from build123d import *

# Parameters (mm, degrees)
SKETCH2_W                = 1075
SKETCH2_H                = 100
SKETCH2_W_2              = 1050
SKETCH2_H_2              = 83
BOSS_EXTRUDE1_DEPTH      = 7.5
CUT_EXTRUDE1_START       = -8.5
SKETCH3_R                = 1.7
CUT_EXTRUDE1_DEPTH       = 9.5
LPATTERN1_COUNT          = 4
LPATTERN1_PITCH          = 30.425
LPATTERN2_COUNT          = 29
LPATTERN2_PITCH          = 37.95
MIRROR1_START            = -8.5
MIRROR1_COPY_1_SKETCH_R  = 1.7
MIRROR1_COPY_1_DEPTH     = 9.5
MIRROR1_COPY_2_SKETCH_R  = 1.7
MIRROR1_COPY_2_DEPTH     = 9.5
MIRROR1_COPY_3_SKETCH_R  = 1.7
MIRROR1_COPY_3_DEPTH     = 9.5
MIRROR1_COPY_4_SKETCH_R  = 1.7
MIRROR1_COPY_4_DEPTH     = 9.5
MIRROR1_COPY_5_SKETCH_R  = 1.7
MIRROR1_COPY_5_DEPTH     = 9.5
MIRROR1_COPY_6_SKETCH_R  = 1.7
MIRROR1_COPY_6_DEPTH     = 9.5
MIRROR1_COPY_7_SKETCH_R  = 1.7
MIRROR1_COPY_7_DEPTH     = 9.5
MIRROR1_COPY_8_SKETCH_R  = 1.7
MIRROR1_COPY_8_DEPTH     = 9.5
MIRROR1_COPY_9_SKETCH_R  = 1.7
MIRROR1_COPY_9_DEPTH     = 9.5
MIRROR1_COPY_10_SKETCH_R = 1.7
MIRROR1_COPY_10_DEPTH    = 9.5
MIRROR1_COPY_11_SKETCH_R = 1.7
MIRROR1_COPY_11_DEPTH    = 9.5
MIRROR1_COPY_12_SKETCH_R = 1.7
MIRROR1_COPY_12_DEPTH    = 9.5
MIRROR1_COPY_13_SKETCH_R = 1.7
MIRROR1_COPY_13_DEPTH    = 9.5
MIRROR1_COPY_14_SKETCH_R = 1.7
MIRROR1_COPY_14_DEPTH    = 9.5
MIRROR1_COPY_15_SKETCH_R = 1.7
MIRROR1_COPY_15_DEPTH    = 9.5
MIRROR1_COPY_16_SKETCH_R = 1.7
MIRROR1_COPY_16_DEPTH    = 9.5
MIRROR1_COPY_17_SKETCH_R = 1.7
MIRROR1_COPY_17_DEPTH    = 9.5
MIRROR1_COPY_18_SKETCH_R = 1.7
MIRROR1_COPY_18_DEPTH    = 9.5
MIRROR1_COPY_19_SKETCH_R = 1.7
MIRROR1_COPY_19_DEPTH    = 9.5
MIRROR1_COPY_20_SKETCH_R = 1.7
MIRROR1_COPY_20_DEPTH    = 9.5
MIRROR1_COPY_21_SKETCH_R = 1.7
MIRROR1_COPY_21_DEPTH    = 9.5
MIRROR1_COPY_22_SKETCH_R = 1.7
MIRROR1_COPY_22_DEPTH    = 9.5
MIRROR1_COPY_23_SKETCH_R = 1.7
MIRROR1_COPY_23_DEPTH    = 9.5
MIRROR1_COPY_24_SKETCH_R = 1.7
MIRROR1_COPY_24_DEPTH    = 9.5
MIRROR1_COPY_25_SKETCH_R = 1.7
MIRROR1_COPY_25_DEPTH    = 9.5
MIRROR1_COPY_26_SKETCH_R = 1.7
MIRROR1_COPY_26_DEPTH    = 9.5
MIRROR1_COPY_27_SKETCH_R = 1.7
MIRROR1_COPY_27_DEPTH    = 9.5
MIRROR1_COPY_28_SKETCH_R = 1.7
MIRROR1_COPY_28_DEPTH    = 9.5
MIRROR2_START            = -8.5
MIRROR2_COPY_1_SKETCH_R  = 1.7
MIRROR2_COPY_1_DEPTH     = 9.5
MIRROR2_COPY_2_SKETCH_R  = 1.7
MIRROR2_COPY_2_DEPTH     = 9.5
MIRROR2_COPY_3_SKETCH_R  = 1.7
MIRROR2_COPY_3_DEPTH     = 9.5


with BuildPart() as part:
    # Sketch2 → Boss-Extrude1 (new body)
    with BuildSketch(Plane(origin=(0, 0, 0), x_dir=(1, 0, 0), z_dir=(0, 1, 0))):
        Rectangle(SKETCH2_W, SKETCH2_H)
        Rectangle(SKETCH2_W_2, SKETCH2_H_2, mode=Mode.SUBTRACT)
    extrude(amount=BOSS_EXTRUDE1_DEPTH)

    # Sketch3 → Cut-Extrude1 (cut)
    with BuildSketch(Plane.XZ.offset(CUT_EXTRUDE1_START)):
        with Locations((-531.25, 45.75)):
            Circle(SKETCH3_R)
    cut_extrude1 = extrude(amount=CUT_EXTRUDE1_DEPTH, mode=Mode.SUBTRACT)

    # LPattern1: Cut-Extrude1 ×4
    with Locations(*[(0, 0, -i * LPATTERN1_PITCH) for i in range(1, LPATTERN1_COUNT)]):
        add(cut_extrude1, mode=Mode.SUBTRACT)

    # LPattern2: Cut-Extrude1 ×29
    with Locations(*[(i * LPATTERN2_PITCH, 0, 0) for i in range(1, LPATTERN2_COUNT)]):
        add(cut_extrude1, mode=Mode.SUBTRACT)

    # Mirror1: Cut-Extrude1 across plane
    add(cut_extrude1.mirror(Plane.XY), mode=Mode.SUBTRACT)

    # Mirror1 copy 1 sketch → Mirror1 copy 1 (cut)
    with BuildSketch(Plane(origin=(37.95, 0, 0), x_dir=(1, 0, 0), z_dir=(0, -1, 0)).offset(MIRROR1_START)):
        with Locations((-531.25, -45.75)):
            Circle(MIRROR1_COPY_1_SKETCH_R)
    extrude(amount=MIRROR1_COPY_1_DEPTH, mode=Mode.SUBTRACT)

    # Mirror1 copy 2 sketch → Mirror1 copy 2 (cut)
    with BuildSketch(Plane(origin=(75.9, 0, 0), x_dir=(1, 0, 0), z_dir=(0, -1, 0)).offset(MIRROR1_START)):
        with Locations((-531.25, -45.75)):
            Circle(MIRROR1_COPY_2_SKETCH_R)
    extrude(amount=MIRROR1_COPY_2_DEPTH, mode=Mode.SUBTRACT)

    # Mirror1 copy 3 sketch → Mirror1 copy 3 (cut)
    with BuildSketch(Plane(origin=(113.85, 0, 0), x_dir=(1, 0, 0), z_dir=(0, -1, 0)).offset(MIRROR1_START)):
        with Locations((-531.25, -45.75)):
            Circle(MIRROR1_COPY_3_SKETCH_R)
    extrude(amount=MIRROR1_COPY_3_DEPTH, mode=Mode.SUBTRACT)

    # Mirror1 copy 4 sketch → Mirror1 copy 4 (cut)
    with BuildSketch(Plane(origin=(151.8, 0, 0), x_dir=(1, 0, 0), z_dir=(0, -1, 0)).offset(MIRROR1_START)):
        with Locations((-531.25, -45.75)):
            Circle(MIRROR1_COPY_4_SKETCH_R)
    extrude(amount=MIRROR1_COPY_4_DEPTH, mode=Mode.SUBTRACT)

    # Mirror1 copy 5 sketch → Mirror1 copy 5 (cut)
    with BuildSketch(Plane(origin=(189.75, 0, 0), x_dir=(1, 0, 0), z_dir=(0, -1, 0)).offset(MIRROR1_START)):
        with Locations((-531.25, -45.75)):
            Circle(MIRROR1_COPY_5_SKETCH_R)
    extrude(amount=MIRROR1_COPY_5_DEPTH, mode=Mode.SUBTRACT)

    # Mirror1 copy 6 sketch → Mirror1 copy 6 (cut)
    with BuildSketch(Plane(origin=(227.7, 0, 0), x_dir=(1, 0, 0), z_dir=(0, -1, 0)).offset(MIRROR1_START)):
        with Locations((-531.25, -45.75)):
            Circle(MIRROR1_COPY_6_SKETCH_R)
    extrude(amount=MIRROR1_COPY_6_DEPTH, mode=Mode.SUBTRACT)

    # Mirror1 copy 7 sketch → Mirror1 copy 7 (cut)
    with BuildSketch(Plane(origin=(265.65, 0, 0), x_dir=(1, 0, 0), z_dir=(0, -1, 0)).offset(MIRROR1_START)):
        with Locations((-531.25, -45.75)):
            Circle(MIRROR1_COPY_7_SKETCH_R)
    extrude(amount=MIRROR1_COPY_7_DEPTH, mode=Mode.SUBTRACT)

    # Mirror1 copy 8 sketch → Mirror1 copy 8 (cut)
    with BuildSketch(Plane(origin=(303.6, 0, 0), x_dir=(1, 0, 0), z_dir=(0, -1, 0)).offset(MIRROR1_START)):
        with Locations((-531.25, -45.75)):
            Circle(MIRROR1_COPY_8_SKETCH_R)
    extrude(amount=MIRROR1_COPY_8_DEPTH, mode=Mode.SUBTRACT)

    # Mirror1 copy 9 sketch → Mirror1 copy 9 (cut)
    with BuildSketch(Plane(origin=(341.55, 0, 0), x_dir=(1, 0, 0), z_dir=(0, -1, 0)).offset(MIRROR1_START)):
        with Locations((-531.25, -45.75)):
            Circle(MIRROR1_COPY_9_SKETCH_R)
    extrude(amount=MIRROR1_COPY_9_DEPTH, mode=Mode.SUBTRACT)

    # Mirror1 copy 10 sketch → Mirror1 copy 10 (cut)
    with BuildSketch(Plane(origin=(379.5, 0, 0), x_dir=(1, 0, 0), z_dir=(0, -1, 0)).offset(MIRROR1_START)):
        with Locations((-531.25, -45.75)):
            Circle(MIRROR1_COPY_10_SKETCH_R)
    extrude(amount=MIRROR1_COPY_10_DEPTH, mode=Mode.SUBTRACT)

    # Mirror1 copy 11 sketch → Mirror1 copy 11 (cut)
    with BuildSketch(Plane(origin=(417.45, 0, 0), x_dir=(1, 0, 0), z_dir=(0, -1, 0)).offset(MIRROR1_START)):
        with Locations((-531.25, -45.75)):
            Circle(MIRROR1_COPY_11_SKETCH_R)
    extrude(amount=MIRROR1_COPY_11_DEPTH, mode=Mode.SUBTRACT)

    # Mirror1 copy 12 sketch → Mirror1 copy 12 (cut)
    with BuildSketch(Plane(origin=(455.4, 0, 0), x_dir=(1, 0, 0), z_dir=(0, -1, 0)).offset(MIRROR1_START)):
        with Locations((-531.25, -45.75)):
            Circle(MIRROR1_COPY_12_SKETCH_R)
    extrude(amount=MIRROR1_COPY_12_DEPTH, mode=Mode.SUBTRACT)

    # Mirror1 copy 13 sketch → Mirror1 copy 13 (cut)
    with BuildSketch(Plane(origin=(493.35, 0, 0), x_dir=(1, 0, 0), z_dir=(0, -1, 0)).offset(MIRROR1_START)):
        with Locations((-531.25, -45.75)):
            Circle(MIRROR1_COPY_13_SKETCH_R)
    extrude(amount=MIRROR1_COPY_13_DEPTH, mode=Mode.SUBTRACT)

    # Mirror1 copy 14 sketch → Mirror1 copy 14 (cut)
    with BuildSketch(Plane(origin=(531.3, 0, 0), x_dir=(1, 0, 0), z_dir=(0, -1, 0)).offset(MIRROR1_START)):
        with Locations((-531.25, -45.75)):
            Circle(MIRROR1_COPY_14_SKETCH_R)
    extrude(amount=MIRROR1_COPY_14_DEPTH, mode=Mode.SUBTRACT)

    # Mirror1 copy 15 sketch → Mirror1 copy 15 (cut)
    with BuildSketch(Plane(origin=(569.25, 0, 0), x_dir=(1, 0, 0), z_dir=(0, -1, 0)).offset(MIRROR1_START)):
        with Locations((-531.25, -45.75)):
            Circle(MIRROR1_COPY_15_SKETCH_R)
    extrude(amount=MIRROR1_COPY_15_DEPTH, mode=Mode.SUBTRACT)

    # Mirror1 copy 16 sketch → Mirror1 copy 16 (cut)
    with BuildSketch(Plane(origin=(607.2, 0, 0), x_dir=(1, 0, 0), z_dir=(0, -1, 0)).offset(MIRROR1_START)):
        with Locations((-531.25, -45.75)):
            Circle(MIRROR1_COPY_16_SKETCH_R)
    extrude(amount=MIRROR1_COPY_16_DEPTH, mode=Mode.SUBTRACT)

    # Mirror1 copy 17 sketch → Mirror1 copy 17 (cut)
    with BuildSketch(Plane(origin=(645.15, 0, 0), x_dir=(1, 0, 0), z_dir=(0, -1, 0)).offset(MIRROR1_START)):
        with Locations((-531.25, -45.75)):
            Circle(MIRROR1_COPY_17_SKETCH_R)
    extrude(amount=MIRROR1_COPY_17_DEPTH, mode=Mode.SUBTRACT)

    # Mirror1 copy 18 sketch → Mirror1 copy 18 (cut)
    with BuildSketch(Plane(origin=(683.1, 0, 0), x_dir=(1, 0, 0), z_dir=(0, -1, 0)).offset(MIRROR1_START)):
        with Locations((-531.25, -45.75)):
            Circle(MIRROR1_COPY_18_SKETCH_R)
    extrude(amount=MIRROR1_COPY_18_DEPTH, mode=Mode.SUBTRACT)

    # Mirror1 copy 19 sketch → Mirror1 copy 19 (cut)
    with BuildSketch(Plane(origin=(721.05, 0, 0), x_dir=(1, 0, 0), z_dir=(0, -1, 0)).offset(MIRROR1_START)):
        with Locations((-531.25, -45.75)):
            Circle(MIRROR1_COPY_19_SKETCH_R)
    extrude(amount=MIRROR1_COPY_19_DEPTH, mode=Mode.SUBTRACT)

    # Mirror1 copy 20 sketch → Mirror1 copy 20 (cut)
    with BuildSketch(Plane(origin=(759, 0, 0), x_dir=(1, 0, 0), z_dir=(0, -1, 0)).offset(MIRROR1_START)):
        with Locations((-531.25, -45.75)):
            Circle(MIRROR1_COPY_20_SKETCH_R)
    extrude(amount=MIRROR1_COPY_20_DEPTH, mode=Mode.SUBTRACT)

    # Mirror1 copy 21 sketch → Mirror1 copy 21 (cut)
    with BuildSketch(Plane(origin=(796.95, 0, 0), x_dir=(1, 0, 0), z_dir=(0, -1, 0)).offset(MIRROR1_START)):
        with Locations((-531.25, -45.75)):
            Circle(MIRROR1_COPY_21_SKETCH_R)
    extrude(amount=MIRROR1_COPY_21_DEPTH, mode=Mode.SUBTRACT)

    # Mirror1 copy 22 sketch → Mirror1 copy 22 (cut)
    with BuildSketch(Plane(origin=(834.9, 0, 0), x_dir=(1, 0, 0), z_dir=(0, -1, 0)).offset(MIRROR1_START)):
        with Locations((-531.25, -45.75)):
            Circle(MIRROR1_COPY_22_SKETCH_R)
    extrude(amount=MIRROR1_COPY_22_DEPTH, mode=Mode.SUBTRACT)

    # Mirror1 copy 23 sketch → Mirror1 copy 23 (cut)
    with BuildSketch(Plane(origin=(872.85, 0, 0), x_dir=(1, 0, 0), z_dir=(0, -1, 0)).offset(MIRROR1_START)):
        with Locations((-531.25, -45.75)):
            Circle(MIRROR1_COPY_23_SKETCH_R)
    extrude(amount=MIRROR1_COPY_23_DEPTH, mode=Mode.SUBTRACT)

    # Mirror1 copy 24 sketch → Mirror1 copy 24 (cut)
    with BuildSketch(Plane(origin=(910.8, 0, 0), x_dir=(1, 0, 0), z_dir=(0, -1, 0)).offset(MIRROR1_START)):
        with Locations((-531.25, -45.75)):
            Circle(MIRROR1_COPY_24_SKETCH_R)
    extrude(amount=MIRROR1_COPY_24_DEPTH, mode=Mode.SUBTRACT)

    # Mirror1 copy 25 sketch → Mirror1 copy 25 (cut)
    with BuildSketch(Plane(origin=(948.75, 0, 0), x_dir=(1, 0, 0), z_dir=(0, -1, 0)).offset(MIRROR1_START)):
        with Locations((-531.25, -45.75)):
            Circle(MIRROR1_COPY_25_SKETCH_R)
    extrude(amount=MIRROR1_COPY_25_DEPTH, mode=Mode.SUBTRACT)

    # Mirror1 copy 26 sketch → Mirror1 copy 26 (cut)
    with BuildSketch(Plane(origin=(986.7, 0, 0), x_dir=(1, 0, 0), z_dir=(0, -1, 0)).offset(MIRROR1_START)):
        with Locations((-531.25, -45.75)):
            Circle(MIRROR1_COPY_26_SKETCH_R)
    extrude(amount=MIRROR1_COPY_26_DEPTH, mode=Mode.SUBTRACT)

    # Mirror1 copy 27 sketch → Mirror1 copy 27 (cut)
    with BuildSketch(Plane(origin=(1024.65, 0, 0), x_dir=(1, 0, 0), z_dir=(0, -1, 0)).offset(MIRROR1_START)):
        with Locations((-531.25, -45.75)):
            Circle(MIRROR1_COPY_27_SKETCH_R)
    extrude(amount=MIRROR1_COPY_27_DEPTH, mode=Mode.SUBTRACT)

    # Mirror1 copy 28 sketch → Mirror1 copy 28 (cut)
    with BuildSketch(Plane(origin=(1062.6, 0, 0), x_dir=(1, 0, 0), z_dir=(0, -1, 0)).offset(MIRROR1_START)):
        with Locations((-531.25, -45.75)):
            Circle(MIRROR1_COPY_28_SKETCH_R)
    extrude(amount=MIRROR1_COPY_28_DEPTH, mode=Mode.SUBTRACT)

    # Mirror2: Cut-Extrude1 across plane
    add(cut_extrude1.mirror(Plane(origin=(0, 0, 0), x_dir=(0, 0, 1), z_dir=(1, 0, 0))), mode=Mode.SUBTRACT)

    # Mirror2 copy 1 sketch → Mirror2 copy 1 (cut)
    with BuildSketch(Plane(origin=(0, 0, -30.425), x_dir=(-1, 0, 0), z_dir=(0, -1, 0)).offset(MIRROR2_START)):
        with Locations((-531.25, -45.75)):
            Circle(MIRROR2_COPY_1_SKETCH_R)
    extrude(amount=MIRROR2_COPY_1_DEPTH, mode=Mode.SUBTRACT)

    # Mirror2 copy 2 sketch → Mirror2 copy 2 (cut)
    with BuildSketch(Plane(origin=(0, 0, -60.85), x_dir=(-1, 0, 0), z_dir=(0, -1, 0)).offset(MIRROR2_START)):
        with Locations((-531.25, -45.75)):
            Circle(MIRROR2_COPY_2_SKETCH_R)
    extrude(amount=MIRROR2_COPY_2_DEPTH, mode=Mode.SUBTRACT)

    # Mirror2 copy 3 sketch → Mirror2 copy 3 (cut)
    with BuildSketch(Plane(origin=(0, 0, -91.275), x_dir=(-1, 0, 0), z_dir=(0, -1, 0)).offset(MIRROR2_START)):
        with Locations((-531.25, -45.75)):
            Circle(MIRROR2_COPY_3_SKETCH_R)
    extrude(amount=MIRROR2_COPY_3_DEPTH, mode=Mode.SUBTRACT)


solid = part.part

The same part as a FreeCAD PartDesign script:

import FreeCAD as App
import Part
import Sketcher

V = App.Vector
Q = App.Units.Quantity


def add_polygon(sketch, points):
    """Adds a closed chain of lines whose ends are joined by coincident constraints."""
    first, n = sketch.GeometryCount, len(points)
    for a, b in zip(points, points[1:] + points[:1]):
        sketch.addGeometry(Part.LineSegment(App.Vector(*a, 0), App.Vector(*b, 0)), False)
    for i in range(n):
        sketch.addConstraint(Sketcher.Constraint("Coincident", first + i, 2, first + (i + 1) % n, 1))

doc = App.newDocument("Part")
body = doc.addObject("PartDesign::Body", "Body")

# Sketch on XZ plane
sketch1 = doc.addObject("Sketcher::SketchObject", "Sketch")
body.addObject(sketch1)
sketch1.AttachmentSupport = (doc.XZ_Plane, [""])
sketch1.MapMode = "FlatFace"
add_polygon(sketch1, [(-538, -50), (-538, 50), (538, 50), (538, -50)])  # lines 0-3
add_polygon(sketch1, [(525, 42), (-525, 42), (-525, -42), (525, -42)])  # lines 4-7
sketch1.addConstraint(Sketcher.Constraint("Vertical", 0))
sketch1.addConstraint(Sketcher.Constraint("Horizontal", 1))
sketch1.addConstraint(Sketcher.Constraint("Vertical", 2))
sketch1.addConstraint(Sketcher.Constraint("Horizontal", 3))
sketch1.addConstraint(Sketcher.Constraint("Horizontal", 4))
sketch1.addConstraint(Sketcher.Constraint("Vertical", 5))
sketch1.addConstraint(Sketcher.Constraint("Horizontal", 6))
sketch1.addConstraint(Sketcher.Constraint("Vertical", 7))
sketch1.addConstraint(Sketcher.Constraint("Symmetric", 0, 2, 2, 2, -1, 1))
sketch1.addConstraint(Sketcher.Constraint("Symmetric", 4, 2, 6, 2, -1, 1))
sketch1.addConstraint(Sketcher.Constraint("DistanceX", 1, 1, 1, 2, Q("1075 mm")))
sketch1.addConstraint(Sketcher.Constraint("DistanceX", 4, 2, 4, 1, Q("1050 mm")))
sketch1.addConstraint(Sketcher.Constraint("DistanceY", 0, 1, 0, 2, Q("100 mm")))
sketch1.addConstraint(Sketcher.Constraint("DistanceY", 5, 2, 5, 1, Q("83 mm")))
pad1 = doc.addObject("PartDesign::Pad", "Pad")
body.addObject(pad1)
pad1.Profile = sketch1
pad1.Length = 7.5
pad1.Reversed = True

# Sketch on XZ plane
sketch2 = doc.addObject("Sketcher::SketchObject", "Sketch001")
body.addObject(sketch2)
sketch2.AttachmentSupport = (doc.XZ_Plane, [""])
sketch2.MapMode = "FlatFace"
sketch2.AttachmentOffset = App.Placement(V(0, 0, -8.5), App.Rotation())
sketch2.addGeometry(Part.Circle(V(-531.2, 45.8, 0), V(0, 0, 1), 1.7), False)
sketch2.addConstraint(Sketcher.Constraint("Diameter", 0, Q("3.4 mm")))
sketch2.addConstraint(Sketcher.Constraint("DistanceX", 0, 3, -1, 1, Q("531.25 mm")))
sketch2.addConstraint(Sketcher.Constraint("DistanceY", -1, 1, 0, 3, Q("45.75 mm")))
pocket1 = doc.addObject("PartDesign::Pocket", "Pocket")
body.addObject(pocket1)
pocket1.Profile = sketch2
pocket1.Length = 9.5
pocket1.Reversed = True
doc.recompute()

linearpattern = doc.addObject("PartDesign::LinearPattern", "LinearPattern")
body.addObject(linearpattern)
linearpattern.Originals = [pocket1]
linearpattern.Direction = (doc.Z_Axis, [""])
linearpattern.Mode = "offset"
linearpattern.Offset = 30.425
linearpattern.Occurrences = 4
linearpattern.Reversed = True
body.Tip = linearpattern
doc.recompute()

linearpattern2 = doc.addObject("PartDesign::LinearPattern", "LinearPattern001")
body.addObject(linearpattern2)
linearpattern2.Originals = [pocket1]
linearpattern2.Direction = (doc.X_Axis, [""])
linearpattern2.Mode = "offset"
linearpattern2.Offset = 37.95
linearpattern2.Occurrences = 29
body.Tip = linearpattern2
doc.recompute()

mirrored = doc.addObject("PartDesign::Mirrored", "Mirrored")
body.addObject(mirrored)
mirrored.Originals = [pocket1]
mirrored.MirrorPlane = (doc.XY_Plane, [""])
body.Tip = mirrored

# Sketch on XZ plane
sketch3 = doc.addObject("Sketcher::SketchObject", "Sketch002")
body.addObject(sketch3)
sketch3.AttachmentSupport = (doc.XZ_Plane, [""])
sketch3.MapMode = "FlatFace"
sketch3.AttachmentOffset = App.Placement(V(0, 0, -8.5), App.Rotation())
sketch3.addGeometry(Part.Circle(V(-493.3, -45.8, 0), V(0, 0, 1), 1.7), False)
sketch3.addConstraint(Sketcher.Constraint("Diameter", 0, Q("3.4 mm")))
sketch3.addConstraint(Sketcher.Constraint("DistanceX", 0, 3, -1, 1, Q("493.3 mm")))
sketch3.addConstraint(Sketcher.Constraint("DistanceY", 0, 3, -1, 1, Q("45.75 mm")))
pocket2 = doc.addObject("PartDesign::Pocket", "Pocket001")
body.addObject(pocket2)
pocket2.Profile = sketch3
pocket2.Length = 9.5
pocket2.Reversed = True

# Sketch on XZ plane
sketch4 = doc.addObject("Sketcher::SketchObject", "Sketch003")
body.addObject(sketch4)
sketch4.AttachmentSupport = (doc.XZ_Plane, [""])
sketch4.MapMode = "FlatFace"
sketch4.AttachmentOffset = App.Placement(V(0, 0, -8.5), App.Rotation())
sketch4.addGeometry(Part.Circle(V(-455.4, -45.8, 0), V(0, 0, 1), 1.7), False)
sketch4.addConstraint(Sketcher.Constraint("Diameter", 0, Q("3.4 mm")))
sketch4.addConstraint(Sketcher.Constraint("DistanceX", 0, 3, -1, 1, Q("455.35 mm")))
sketch4.addConstraint(Sketcher.Constraint("DistanceY", 0, 3, -1, 1, Q("45.75 mm")))
pocket3 = doc.addObject("PartDesign::Pocket", "Pocket002")
body.addObject(pocket3)
pocket3.Profile = sketch4
pocket3.Length = 9.5
pocket3.Reversed = True

# Sketch on XZ plane
sketch5 = doc.addObject("Sketcher::SketchObject", "Sketch004")
body.addObject(sketch5)
sketch5.AttachmentSupport = (doc.XZ_Plane, [""])
sketch5.MapMode = "FlatFace"
sketch5.AttachmentOffset = App.Placement(V(0, 0, -8.5), App.Rotation())
sketch5.addGeometry(Part.Circle(V(-417.4, -45.8, 0), V(0, 0, 1), 1.7), False)
sketch5.addConstraint(Sketcher.Constraint("Diameter", 0, Q("3.4 mm")))
sketch5.addConstraint(Sketcher.Constraint("DistanceX", 0, 3, -1, 1, Q("417.4 mm")))
sketch5.addConstraint(Sketcher.Constraint("DistanceY", 0, 3, -1, 1, Q("45.75 mm")))
pocket4 = doc.addObject("PartDesign::Pocket", "Pocket003")
body.addObject(pocket4)
pocket4.Profile = sketch5
pocket4.Length = 9.5
pocket4.Reversed = True

# Sketch on XZ plane
sketch6 = doc.addObject("Sketcher::SketchObject", "Sketch005")
body.addObject(sketch6)
sketch6.AttachmentSupport = (doc.XZ_Plane, [""])
sketch6.MapMode = "FlatFace"
sketch6.AttachmentOffset = App.Placement(V(0, 0, -8.5), App.Rotation())
sketch6.addGeometry(Part.Circle(V(-379.4, -45.8, 0), V(0, 0, 1), 1.7), False)
sketch6.addConstraint(Sketcher.Constraint("Diameter", 0, Q("3.4 mm")))
sketch6.addConstraint(Sketcher.Constraint("DistanceX", 0, 3, -1, 1, Q("379.45 mm")))
sketch6.addConstraint(Sketcher.Constraint("DistanceY", 0, 3, -1, 1, Q("45.75 mm")))
pocket5 = doc.addObject("PartDesign::Pocket", "Pocket004")
body.addObject(pocket5)
pocket5.Profile = sketch6
pocket5.Length = 9.5
pocket5.Reversed = True

# Sketch on XZ plane
sketch7 = doc.addObject("Sketcher::SketchObject", "Sketch006")
body.addObject(sketch7)
sketch7.AttachmentSupport = (doc.XZ_Plane, [""])
sketch7.MapMode = "FlatFace"
sketch7.AttachmentOffset = App.Placement(V(0, 0, -8.5), App.Rotation())
sketch7.addGeometry(Part.Circle(V(-341.5, -45.8, 0), V(0, 0, 1), 1.7), False)
sketch7.addConstraint(Sketcher.Constraint("Diameter", 0, Q("3.4 mm")))
sketch7.addConstraint(Sketcher.Constraint("DistanceX", 0, 3, -1, 1, Q("341.5 mm")))
sketch7.addConstraint(Sketcher.Constraint("DistanceY", 0, 3, -1, 1, Q("45.75 mm")))
pocket6 = doc.addObject("PartDesign::Pocket", "Pocket005")
body.addObject(pocket6)
pocket6.Profile = sketch7
pocket6.Length = 9.5
pocket6.Reversed = True

# Sketch on XZ plane
sketch8 = doc.addObject("Sketcher::SketchObject", "Sketch007")
body.addObject(sketch8)
sketch8.AttachmentSupport = (doc.XZ_Plane, [""])
sketch8.MapMode = "FlatFace"
sketch8.AttachmentOffset = App.Placement(V(0, 0, -8.5), App.Rotation())
sketch8.addGeometry(Part.Circle(V(-303.6, -45.8, 0), V(0, 0, 1), 1.7), False)
sketch8.addConstraint(Sketcher.Constraint("Diameter", 0, Q("3.4 mm")))
sketch8.addConstraint(Sketcher.Constraint("DistanceX", 0, 3, -1, 1, Q("303.55 mm")))
sketch8.addConstraint(Sketcher.Constraint("DistanceY", 0, 3, -1, 1, Q("45.75 mm")))
pocket7 = doc.addObject("PartDesign::Pocket", "Pocket006")
body.addObject(pocket7)
pocket7.Profile = sketch8
pocket7.Length = 9.5
pocket7.Reversed = True

# Sketch on XZ plane
sketch9 = doc.addObject("Sketcher::SketchObject", "Sketch008")
body.addObject(sketch9)
sketch9.AttachmentSupport = (doc.XZ_Plane, [""])
sketch9.MapMode = "FlatFace"
sketch9.AttachmentOffset = App.Placement(V(0, 0, -8.5), App.Rotation())
sketch9.addGeometry(Part.Circle(V(-265.6, -45.8, 0), V(0, 0, 1), 1.7), False)
sketch9.addConstraint(Sketcher.Constraint("Diameter", 0, Q("3.4 mm")))
sketch9.addConstraint(Sketcher.Constraint("DistanceX", 0, 3, -1, 1, Q("265.6 mm")))
sketch9.addConstraint(Sketcher.Constraint("DistanceY", 0, 3, -1, 1, Q("45.75 mm")))
pocket8 = doc.addObject("PartDesign::Pocket", "Pocket007")
body.addObject(pocket8)
pocket8.Profile = sketch9
pocket8.Length = 9.5
pocket8.Reversed = True

# Sketch on XZ plane
sketch10 = doc.addObject("Sketcher::SketchObject", "Sketch009")
body.addObject(sketch10)
sketch10.AttachmentSupport = (doc.XZ_Plane, [""])
sketch10.MapMode = "FlatFace"
sketch10.AttachmentOffset = App.Placement(V(0, 0, -8.5), App.Rotation())
sketch10.addGeometry(Part.Circle(V(-227.7, -45.8, 0), V(0, 0, 1), 1.7), False)
sketch10.addConstraint(Sketcher.Constraint("Diameter", 0, Q("3.4 mm")))
sketch10.addConstraint(Sketcher.Constraint("DistanceX", 0, 3, -1, 1, Q("227.65 mm")))
sketch10.addConstraint(Sketcher.Constraint("DistanceY", 0, 3, -1, 1, Q("45.75 mm")))
pocket9 = doc.addObject("PartDesign::Pocket", "Pocket008")
body.addObject(pocket9)
pocket9.Profile = sketch10
pocket9.Length = 9.5
pocket9.Reversed = True

# Sketch on XZ plane
sketch11 = doc.addObject("Sketcher::SketchObject", "Sketch010")
body.addObject(sketch11)
sketch11.AttachmentSupport = (doc.XZ_Plane, [""])
sketch11.MapMode = "FlatFace"
sketch11.AttachmentOffset = App.Placement(V(0, 0, -8.5), App.Rotation())
sketch11.addGeometry(Part.Circle(V(-189.7, -45.8, 0), V(0, 0, 1), 1.7), False)
sketch11.addConstraint(Sketcher.Constraint("Diameter", 0, Q("3.4 mm")))
sketch11.addConstraint(Sketcher.Constraint("DistanceX", 0, 3, -1, 1, Q("189.7 mm")))
sketch11.addConstraint(Sketcher.Constraint("DistanceY", 0, 3, -1, 1, Q("45.75 mm")))
pocket10 = doc.addObject("PartDesign::Pocket", "Pocket009")
body.addObject(pocket10)
pocket10.Profile = sketch11
pocket10.Length = 9.5
pocket10.Reversed = True

# Sketch on XZ plane
sketch12 = doc.addObject("Sketcher::SketchObject", "Sketch011")
body.addObject(sketch12)
sketch12.AttachmentSupport = (doc.XZ_Plane, [""])
sketch12.MapMode = "FlatFace"
sketch12.AttachmentOffset = App.Placement(V(0, 0, -8.5), App.Rotation())
sketch12.addGeometry(Part.Circle(V(-151.8, -45.8, 0), V(0, 0, 1), 1.7), False)
sketch12.addConstraint(Sketcher.Constraint("Diameter", 0, Q("3.4 mm")))
sketch12.addConstraint(Sketcher.Constraint("DistanceX", 0, 3, -1, 1, Q("151.75 mm")))
sketch12.addConstraint(Sketcher.Constraint("DistanceY", 0, 3, -1, 1, Q("45.75 mm")))
pocket11 = doc.addObject("PartDesign::Pocket", "Pocket010")
body.addObject(pocket11)
pocket11.Profile = sketch12
pocket11.Length = 9.5
pocket11.Reversed = True

# Sketch on XZ plane
sketch13 = doc.addObject("Sketcher::SketchObject", "Sketch012")
body.addObject(sketch13)
sketch13.AttachmentSupport = (doc.XZ_Plane, [""])
sketch13.MapMode = "FlatFace"
sketch13.AttachmentOffset = App.Placement(V(0, 0, -8.5), App.Rotation())
sketch13.addGeometry(Part.Circle(V(-113.8, -45.8, 0), V(0, 0, 1), 1.7), False)
sketch13.addConstraint(Sketcher.Constraint("Diameter", 0, Q("3.4 mm")))
sketch13.addConstraint(Sketcher.Constraint("DistanceX", 0, 3, -1, 1, Q("113.8 mm")))
sketch13.addConstraint(Sketcher.Constraint("DistanceY", 0, 3, -1, 1, Q("45.75 mm")))
pocket12 = doc.addObject("PartDesign::Pocket", "Pocket011")
body.addObject(pocket12)
pocket12.Profile = sketch13
pocket12.Length = 9.5
pocket12.Reversed = True

# Sketch on XZ plane
sketch14 = doc.addObject("Sketcher::SketchObject", "Sketch013")
body.addObject(sketch14)
sketch14.AttachmentSupport = (doc.XZ_Plane, [""])
sketch14.MapMode = "FlatFace"
sketch14.AttachmentOffset = App.Placement(V(0, 0, -8.5), App.Rotation())
sketch14.addGeometry(Part.Circle(V(-75.8, -45.8, 0), V(0, 0, 1), 1.7), False)
sketch14.addConstraint(Sketcher.Constraint("Diameter", 0, Q("3.4 mm")))
sketch14.addConstraint(Sketcher.Constraint("DistanceX", 0, 3, -1, 1, Q("75.85 mm")))
sketch14.addConstraint(Sketcher.Constraint("DistanceY", 0, 3, -1, 1, Q("45.75 mm")))
pocket13 = doc.addObject("PartDesign::Pocket", "Pocket012")
body.addObject(pocket13)
pocket13.Profile = sketch14
pocket13.Length = 9.5
pocket13.Reversed = True

# Sketch on XZ plane
sketch15 = doc.addObject("Sketcher::SketchObject", "Sketch014")
body.addObject(sketch15)
sketch15.AttachmentSupport = (doc.XZ_Plane, [""])
sketch15.MapMode = "FlatFace"
sketch15.AttachmentOffset = App.Placement(V(0, 0, -8.5), App.Rotation())
sketch15.addGeometry(Part.Circle(V(-37.9, -45.8, 0), V(0, 0, 1), 1.7), False)
sketch15.addConstraint(Sketcher.Constraint("Diameter", 0, Q("3.4 mm")))
sketch15.addConstraint(Sketcher.Constraint("DistanceX", 0, 3, -1, 1, Q("37.9 mm")))
sketch15.addConstraint(Sketcher.Constraint("DistanceY", 0, 3, -1, 1, Q("45.75 mm")))
pocket14 = doc.addObject("PartDesign::Pocket", "Pocket013")
body.addObject(pocket14)
pocket14.Profile = sketch15
pocket14.Length = 9.5
pocket14.Reversed = True

# Sketch on XZ plane
sketch16 = doc.addObject("Sketcher::SketchObject", "Sketch015")
body.addObject(sketch16)
sketch16.AttachmentSupport = (doc.XZ_Plane, [""])
sketch16.MapMode = "FlatFace"
sketch16.AttachmentOffset = App.Placement(V(0, 0, -8.5), App.Rotation())
sketch16.addGeometry(Part.Circle(V(0.1, -45.8, 0), V(0, 0, 1), 1.7), False)
sketch16.addConstraint(Sketcher.Constraint("Diameter", 0, Q("3.4 mm")))
sketch16.addConstraint(Sketcher.Constraint("DistanceX", -1, 1, 0, 3, Q("0.05 mm")))
sketch16.addConstraint(Sketcher.Constraint("DistanceY", 0, 3, -1, 1, Q("45.75 mm")))
pocket15 = doc.addObject("PartDesign::Pocket", "Pocket014")
body.addObject(pocket15)
pocket15.Profile = sketch16
pocket15.Length = 9.5
pocket15.Reversed = True

# Sketch on XZ plane
sketch17 = doc.addObject("Sketcher::SketchObject", "Sketch016")
body.addObject(sketch17)
sketch17.AttachmentSupport = (doc.XZ_Plane, [""])
sketch17.MapMode = "FlatFace"
sketch17.AttachmentOffset = App.Placement(V(0, 0, -8.5), App.Rotation())
sketch17.addGeometry(Part.Circle(V(38, -45.8, 0), V(0, 0, 1), 1.7), False)
sketch17.addConstraint(Sketcher.Constraint("Diameter", 0, Q("3.4 mm")))
sketch17.addConstraint(Sketcher.Constraint("DistanceX", -1, 1, 0, 3, Q("38 mm")))
sketch17.addConstraint(Sketcher.Constraint("DistanceY", 0, 3, -1, 1, Q("45.75 mm")))
pocket16 = doc.addObject("PartDesign::Pocket", "Pocket015")
body.addObject(pocket16)
pocket16.Profile = sketch17
pocket16.Length = 9.5
pocket16.Reversed = True

# Sketch on XZ plane
sketch18 = doc.addObject("Sketcher::SketchObject", "Sketch017")
body.addObject(sketch18)
sketch18.AttachmentSupport = (doc.XZ_Plane, [""])
sketch18.MapMode = "FlatFace"
sketch18.AttachmentOffset = App.Placement(V(0, 0, -8.5), App.Rotation())
sketch18.addGeometry(Part.Circle(V(76, -45.8, 0), V(0, 0, 1), 1.7), False)
sketch18.addConstraint(Sketcher.Constraint("Diameter", 0, Q("3.4 mm")))
sketch18.addConstraint(Sketcher.Constraint("DistanceX", -1, 1, 0, 3, Q("75.95 mm")))
sketch18.addConstraint(Sketcher.Constraint("DistanceY", 0, 3, -1, 1, Q("45.75 mm")))
pocket17 = doc.addObject("PartDesign::Pocket", "Pocket016")
body.addObject(pocket17)
pocket17.Profile = sketch18
pocket17.Length = 9.5
pocket17.Reversed = True

# Sketch on XZ plane
sketch19 = doc.addObject("Sketcher::SketchObject", "Sketch018")
body.addObject(sketch19)
sketch19.AttachmentSupport = (doc.XZ_Plane, [""])
sketch19.MapMode = "FlatFace"
sketch19.AttachmentOffset = App.Placement(V(0, 0, -8.5), App.Rotation())
sketch19.addGeometry(Part.Circle(V(113.9, -45.8, 0), V(0, 0, 1), 1.7), False)
sketch19.addConstraint(Sketcher.Constraint("Diameter", 0, Q("3.4 mm")))
sketch19.addConstraint(Sketcher.Constraint("DistanceX", -1, 1, 0, 3, Q("113.9 mm")))
sketch19.addConstraint(Sketcher.Constraint("DistanceY", 0, 3, -1, 1, Q("45.75 mm")))
pocket18 = doc.addObject("PartDesign::Pocket", "Pocket017")
body.addObject(pocket18)
pocket18.Profile = sketch19
pocket18.Length = 9.5
pocket18.Reversed = True

# Sketch on XZ plane
sketch20 = doc.addObject("Sketcher::SketchObject", "Sketch019")
body.addObject(sketch20)
sketch20.AttachmentSupport = (doc.XZ_Plane, [""])
sketch20.MapMode = "FlatFace"
sketch20.AttachmentOffset = App.Placement(V(0, 0, -8.5), App.Rotation())
sketch20.addGeometry(Part.Circle(V(151.8, -45.8, 0), V(0, 0, 1), 1.7), False)
sketch20.addConstraint(Sketcher.Constraint("Diameter", 0, Q("3.4 mm")))
sketch20.addConstraint(Sketcher.Constraint("DistanceX", -1, 1, 0, 3, Q("151.85 mm")))
sketch20.addConstraint(Sketcher.Constraint("DistanceY", 0, 3, -1, 1, Q("45.75 mm")))
pocket19 = doc.addObject("PartDesign::Pocket", "Pocket018")
body.addObject(pocket19)
pocket19.Profile = sketch20
pocket19.Length = 9.5
pocket19.Reversed = True

# Sketch on XZ plane
sketch21 = doc.addObject("Sketcher::SketchObject", "Sketch020")
body.addObject(sketch21)
sketch21.AttachmentSupport = (doc.XZ_Plane, [""])
sketch21.MapMode = "FlatFace"
sketch21.AttachmentOffset = App.Placement(V(0, 0, -8.5), App.Rotation())
sketch21.addGeometry(Part.Circle(V(189.8, -45.8, 0), V(0, 0, 1), 1.7), False)
sketch21.addConstraint(Sketcher.Constraint("Diameter", 0, Q("3.4 mm")))
sketch21.addConstraint(Sketcher.Constraint("DistanceX", -1, 1, 0, 3, Q("189.8 mm")))
sketch21.addConstraint(Sketcher.Constraint("DistanceY", 0, 3, -1, 1, Q("45.75 mm")))
pocket20 = doc.addObject("PartDesign::Pocket", "Pocket019")
body.addObject(pocket20)
pocket20.Profile = sketch21
pocket20.Length = 9.5
pocket20.Reversed = True

# Sketch on XZ plane
sketch22 = doc.addObject("Sketcher::SketchObject", "Sketch021")
body.addObject(sketch22)
sketch22.AttachmentSupport = (doc.XZ_Plane, [""])
sketch22.MapMode = "FlatFace"
sketch22.AttachmentOffset = App.Placement(V(0, 0, -8.5), App.Rotation())
sketch22.addGeometry(Part.Circle(V(227.8, -45.8, 0), V(0, 0, 1), 1.7), False)
sketch22.addConstraint(Sketcher.Constraint("Diameter", 0, Q("3.4 mm")))
sketch22.addConstraint(Sketcher.Constraint("DistanceX", -1, 1, 0, 3, Q("227.75 mm")))
sketch22.addConstraint(Sketcher.Constraint("DistanceY", 0, 3, -1, 1, Q("45.75 mm")))
pocket21 = doc.addObject("PartDesign::Pocket", "Pocket020")
body.addObject(pocket21)
pocket21.Profile = sketch22
pocket21.Length = 9.5
pocket21.Reversed = True

# Sketch on XZ plane
sketch23 = doc.addObject("Sketcher::SketchObject", "Sketch022")
body.addObject(sketch23)
sketch23.AttachmentSupport = (doc.XZ_Plane, [""])
sketch23.MapMode = "FlatFace"
sketch23.AttachmentOffset = App.Placement(V(0, 0, -8.5), App.Rotation())
sketch23.addGeometry(Part.Circle(V(265.7, -45.8, 0), V(0, 0, 1), 1.7), False)
sketch23.addConstraint(Sketcher.Constraint("Diameter", 0, Q("3.4 mm")))
sketch23.addConstraint(Sketcher.Constraint("DistanceX", -1, 1, 0, 3, Q("265.7 mm")))
sketch23.addConstraint(Sketcher.Constraint("DistanceY", 0, 3, -1, 1, Q("45.75 mm")))
pocket22 = doc.addObject("PartDesign::Pocket", "Pocket021")
body.addObject(pocket22)
pocket22.Profile = sketch23
pocket22.Length = 9.5
pocket22.Reversed = True

# Sketch on XZ plane
sketch24 = doc.addObject("Sketcher::SketchObject", "Sketch023")
body.addObject(sketch24)
sketch24.AttachmentSupport = (doc.XZ_Plane, [""])
sketch24.MapMode = "FlatFace"
sketch24.AttachmentOffset = App.Placement(V(0, 0, -8.5), App.Rotation())
sketch24.addGeometry(Part.Circle(V(303.6, -45.8, 0), V(0, 0, 1), 1.7), False)
sketch24.addConstraint(Sketcher.Constraint("Diameter", 0, Q("3.4 mm")))
sketch24.addConstraint(Sketcher.Constraint("DistanceX", -1, 1, 0, 3, Q("303.65 mm")))
sketch24.addConstraint(Sketcher.Constraint("DistanceY", 0, 3, -1, 1, Q("45.75 mm")))
pocket23 = doc.addObject("PartDesign::Pocket", "Pocket022")
body.addObject(pocket23)
pocket23.Profile = sketch24
pocket23.Length = 9.5
pocket23.Reversed = True

# Sketch on XZ plane
sketch25 = doc.addObject("Sketcher::SketchObject", "Sketch024")
body.addObject(sketch25)
sketch25.AttachmentSupport = (doc.XZ_Plane, [""])
sketch25.MapMode = "FlatFace"
sketch25.AttachmentOffset = App.Placement(V(0, 0, -8.5), App.Rotation())
sketch25.addGeometry(Part.Circle(V(341.6, -45.8, 0), V(0, 0, 1), 1.7), False)
sketch25.addConstraint(Sketcher.Constraint("Diameter", 0, Q("3.4 mm")))
sketch25.addConstraint(Sketcher.Constraint("DistanceX", -1, 1, 0, 3, Q("341.6 mm")))
sketch25.addConstraint(Sketcher.Constraint("DistanceY", 0, 3, -1, 1, Q("45.75 mm")))
pocket24 = doc.addObject("PartDesign::Pocket", "Pocket023")
body.addObject(pocket24)
pocket24.Profile = sketch25
pocket24.Length = 9.5
pocket24.Reversed = True

# Sketch on XZ plane
sketch26 = doc.addObject("Sketcher::SketchObject", "Sketch025")
body.addObject(sketch26)
sketch26.AttachmentSupport = (doc.XZ_Plane, [""])
sketch26.MapMode = "FlatFace"
sketch26.AttachmentOffset = App.Placement(V(0, 0, -8.5), App.Rotation())
sketch26.addGeometry(Part.Circle(V(379.6, -45.8, 0), V(0, 0, 1), 1.7), False)
sketch26.addConstraint(Sketcher.Constraint("Diameter", 0, Q("3.4 mm")))
sketch26.addConstraint(Sketcher.Constraint("DistanceX", -1, 1, 0, 3, Q("379.55 mm")))
sketch26.addConstraint(Sketcher.Constraint("DistanceY", 0, 3, -1, 1, Q("45.75 mm")))
pocket25 = doc.addObject("PartDesign::Pocket", "Pocket024")
body.addObject(pocket25)
pocket25.Profile = sketch26
pocket25.Length = 9.5
pocket25.Reversed = True

# Sketch on XZ plane
sketch27 = doc.addObject("Sketcher::SketchObject", "Sketch026")
body.addObject(sketch27)
sketch27.AttachmentSupport = (doc.XZ_Plane, [""])
sketch27.MapMode = "FlatFace"
sketch27.AttachmentOffset = App.Placement(V(0, 0, -8.5), App.Rotation())
sketch27.addGeometry(Part.Circle(V(417.5, -45.8, 0), V(0, 0, 1), 1.7), False)
sketch27.addConstraint(Sketcher.Constraint("Diameter", 0, Q("3.4 mm")))
sketch27.addConstraint(Sketcher.Constraint("DistanceX", -1, 1, 0, 3, Q("417.5 mm")))
sketch27.addConstraint(Sketcher.Constraint("DistanceY", 0, 3, -1, 1, Q("45.75 mm")))
pocket26 = doc.addObject("PartDesign::Pocket", "Pocket025")
body.addObject(pocket26)
pocket26.Profile = sketch27
pocket26.Length = 9.5
pocket26.Reversed = True

# Sketch on XZ plane
sketch28 = doc.addObject("Sketcher::SketchObject", "Sketch027")
body.addObject(sketch28)
sketch28.AttachmentSupport = (doc.XZ_Plane, [""])
sketch28.MapMode = "FlatFace"
sketch28.AttachmentOffset = App.Placement(V(0, 0, -8.5), App.Rotation())
sketch28.addGeometry(Part.Circle(V(455.4, -45.8, 0), V(0, 0, 1), 1.7), False)
sketch28.addConstraint(Sketcher.Constraint("Diameter", 0, Q("3.4 mm")))
sketch28.addConstraint(Sketcher.Constraint("DistanceX", -1, 1, 0, 3, Q("455.45 mm")))
sketch28.addConstraint(Sketcher.Constraint("DistanceY", 0, 3, -1, 1, Q("45.75 mm")))
pocket27 = doc.addObject("PartDesign::Pocket", "Pocket026")
body.addObject(pocket27)
pocket27.Profile = sketch28
pocket27.Length = 9.5
pocket27.Reversed = True

# Sketch on XZ plane
sketch29 = doc.addObject("Sketcher::SketchObject", "Sketch028")
body.addObject(sketch29)
sketch29.AttachmentSupport = (doc.XZ_Plane, [""])
sketch29.MapMode = "FlatFace"
sketch29.AttachmentOffset = App.Placement(V(0, 0, -8.5), App.Rotation())
sketch29.addGeometry(Part.Circle(V(493.4, -45.8, 0), V(0, 0, 1), 1.7), False)
sketch29.addConstraint(Sketcher.Constraint("Diameter", 0, Q("3.4 mm")))
sketch29.addConstraint(Sketcher.Constraint("DistanceX", -1, 1, 0, 3, Q("493.4 mm")))
sketch29.addConstraint(Sketcher.Constraint("DistanceY", 0, 3, -1, 1, Q("45.75 mm")))
pocket28 = doc.addObject("PartDesign::Pocket", "Pocket027")
body.addObject(pocket28)
pocket28.Profile = sketch29
pocket28.Length = 9.5
pocket28.Reversed = True

# Sketch on XZ plane
sketch30 = doc.addObject("Sketcher::SketchObject", "Sketch029")
body.addObject(sketch30)
sketch30.AttachmentSupport = (doc.XZ_Plane, [""])
sketch30.MapMode = "FlatFace"
sketch30.AttachmentOffset = App.Placement(V(0, 0, -8.5), App.Rotation())
sketch30.addGeometry(Part.Circle(V(531.4, -45.8, 0), V(0, 0, 1), 1.7), False)
sketch30.addConstraint(Sketcher.Constraint("Diameter", 0, Q("3.4 mm")))
sketch30.addConstraint(Sketcher.Constraint("DistanceX", -1, 1, 0, 3, Q("531.35 mm")))
sketch30.addConstraint(Sketcher.Constraint("DistanceY", 0, 3, -1, 1, Q("45.75 mm")))
pocket29 = doc.addObject("PartDesign::Pocket", "Pocket028")
body.addObject(pocket29)
pocket29.Profile = sketch30
pocket29.Length = 9.5
pocket29.Reversed = True
doc.recompute()

mirrored2 = doc.addObject("PartDesign::Mirrored", "Mirrored001")
body.addObject(mirrored2)
mirrored2.Originals = [pocket1]
mirrored2.MirrorPlane = (doc.YZ_Plane, [""])
body.Tip = mirrored2

# Sketch on XZ plane
sketch31 = doc.addObject("Sketcher::SketchObject", "Sketch030")
body.addObject(sketch31)
sketch31.AttachmentSupport = (doc.XZ_Plane, [""])
sketch31.MapMode = "FlatFace"
sketch31.AttachmentOffset = App.Placement(V(0, 0, -8.5), App.Rotation())
sketch31.addGeometry(Part.Circle(V(531.2, 15.3, 0), V(0, 0, 1), 1.7), False)
sketch31.addConstraint(Sketcher.Constraint("Diameter", 0, Q("3.4 mm")))
sketch31.addConstraint(Sketcher.Constraint("DistanceX", -1, 1, 0, 3, Q("531.25 mm")))
sketch31.addConstraint(Sketcher.Constraint("DistanceY", -1, 1, 0, 3, Q("15.325 mm")))
pocket30 = doc.addObject("PartDesign::Pocket", "Pocket029")
body.addObject(pocket30)
pocket30.Profile = sketch31
pocket30.Length = 9.5
pocket30.Reversed = True

# Sketch on XZ plane
sketch32 = doc.addObject("Sketcher::SketchObject", "Sketch031")
body.addObject(sketch32)
sketch32.AttachmentSupport = (doc.XZ_Plane, [""])
sketch32.MapMode = "FlatFace"
sketch32.AttachmentOffset = App.Placement(V(0, 0, -8.5), App.Rotation())
sketch32.addGeometry(Part.Circle(V(531.2, -15.1, 0), V(0, 0, 1), 1.7), False)
sketch32.addConstraint(Sketcher.Constraint("Diameter", 0, Q("3.4 mm")))
sketch32.addConstraint(Sketcher.Constraint("DistanceY", 0, 3, -1, 1, Q("15.1 mm")))
sketch32.addConstraint(Sketcher.Constraint("DistanceX", -1, 1, 0, 3, Q("531.25 mm")))
pocket31 = doc.addObject("PartDesign::Pocket", "Pocket030")
body.addObject(pocket31)
pocket31.Profile = sketch32
pocket31.Length = 9.5
pocket31.Reversed = True

# Sketch on XZ plane
sketch33 = doc.addObject("Sketcher::SketchObject", "Sketch032")
body.addObject(sketch33)
sketch33.AttachmentSupport = (doc.XZ_Plane, [""])
sketch33.MapMode = "FlatFace"
sketch33.AttachmentOffset = App.Placement(V(0, 0, -8.5), App.Rotation())
sketch33.addGeometry(Part.Circle(V(531.2, -45.5, 0), V(0, 0, 1), 1.7), False)
sketch33.addConstraint(Sketcher.Constraint("Diameter", 0, Q("3.4 mm")))
sketch33.addConstraint(Sketcher.Constraint("DistanceX", -1, 1, 0, 3, Q("531.25 mm")))
sketch33.addConstraint(Sketcher.Constraint("DistanceY", 0, 3, -1, 1, Q("45.525 mm")))
pocket32 = doc.addObject("PartDesign::Pocket", "Pocket031")
body.addObject(pocket32)
pocket32.Profile = sketch33
pocket32.Length = 9.5
pocket32.Reversed = True

doc.recompute()
